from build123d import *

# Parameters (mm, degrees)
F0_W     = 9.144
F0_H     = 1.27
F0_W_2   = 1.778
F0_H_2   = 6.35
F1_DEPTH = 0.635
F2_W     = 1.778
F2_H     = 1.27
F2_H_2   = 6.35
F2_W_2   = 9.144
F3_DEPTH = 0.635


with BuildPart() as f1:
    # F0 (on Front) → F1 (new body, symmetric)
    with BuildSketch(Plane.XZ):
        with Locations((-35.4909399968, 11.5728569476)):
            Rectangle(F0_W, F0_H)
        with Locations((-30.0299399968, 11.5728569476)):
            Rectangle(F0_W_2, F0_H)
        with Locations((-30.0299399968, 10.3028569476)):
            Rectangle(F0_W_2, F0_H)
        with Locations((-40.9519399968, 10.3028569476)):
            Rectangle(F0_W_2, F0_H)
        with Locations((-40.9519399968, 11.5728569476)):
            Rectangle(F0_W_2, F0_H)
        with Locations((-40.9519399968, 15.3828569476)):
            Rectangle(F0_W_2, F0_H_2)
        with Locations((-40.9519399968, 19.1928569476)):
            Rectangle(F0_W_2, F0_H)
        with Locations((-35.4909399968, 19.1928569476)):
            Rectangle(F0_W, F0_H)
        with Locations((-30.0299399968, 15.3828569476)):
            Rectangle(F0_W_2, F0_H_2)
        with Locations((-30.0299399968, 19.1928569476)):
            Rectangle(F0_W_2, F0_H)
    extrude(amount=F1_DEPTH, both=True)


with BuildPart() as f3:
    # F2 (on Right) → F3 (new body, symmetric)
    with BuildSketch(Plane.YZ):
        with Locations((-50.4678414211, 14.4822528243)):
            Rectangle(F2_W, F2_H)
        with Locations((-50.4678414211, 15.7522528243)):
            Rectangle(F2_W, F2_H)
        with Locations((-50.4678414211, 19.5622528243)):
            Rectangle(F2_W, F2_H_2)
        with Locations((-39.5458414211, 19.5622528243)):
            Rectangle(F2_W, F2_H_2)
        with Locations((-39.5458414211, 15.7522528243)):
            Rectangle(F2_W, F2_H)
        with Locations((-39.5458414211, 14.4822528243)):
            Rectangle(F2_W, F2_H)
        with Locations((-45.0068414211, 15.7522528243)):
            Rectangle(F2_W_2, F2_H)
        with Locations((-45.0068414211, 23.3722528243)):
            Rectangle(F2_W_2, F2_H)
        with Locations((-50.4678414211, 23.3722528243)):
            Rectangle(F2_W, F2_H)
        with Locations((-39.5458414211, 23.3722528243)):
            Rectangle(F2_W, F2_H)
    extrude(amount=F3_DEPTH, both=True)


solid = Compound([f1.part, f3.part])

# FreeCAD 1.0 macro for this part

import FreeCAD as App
import Part
import Sketcher
Q = App.Units.Quantity

doc = App.newDocument("Part")
params = doc.addObject("Spreadsheet::Sheet", "Params")
for row, (alias, value) in enumerate([
    ("sketch1_width", "0.5 in"),
    ("sketch1_height", "0.4 in"),
    ("sketch1_width2", "0.07 in"),
    ("sketch1_height2", "0.05 in"),
    ("sketch1_height3", "0.25 in"),
    ("pad1_length", "0.05 in"),
    ("sketch2_width", "0.5 in"),
    ("sketch2_height", "0.4 in"),
    ("sketch2_width2", "0.07 in"),
    ("sketch2_height2", "0.05 in"),
    ("sketch2_height3", "0.25 in"),
    ("pad2_length", "0.05 in"),
], start=1):
    params.set(f"A{row}", alias)
    params.set(f"B{row}", "=" + value)
    params.setAlias(f"B{row}", alias)

body = doc.addObject("PartDesign::Body", "Body")

# Sketch on XZ plane
sketch1 = body.newObject("Sketcher::SketchObject", "Sketch")
sketch1.AttachmentSupport = (doc.getObject("XZ_Plane"), [""])
sketch1.MapMode = "FlatFace"
sketch1.addGeometry([
    Part.LineSegment(App.Vector(-29.1, 9.7, 0), App.Vector(-29.1, 19.8, 0)),  # 0
    Part.LineSegment(App.Vector(-29.1, 19.8, 0), App.Vector(-41.8, 19.8, 0)),  # 1
    Part.LineSegment(App.Vector(-41.8, 19.8, 0), App.Vector(-41.8, 9.7, 0)),  # 2
    Part.LineSegment(App.Vector(-41.8, 9.7, 0), App.Vector(-40.1, 9.7, 0)),  # 3
    Part.LineSegment(App.Vector(-40.1, 9.7, 0), App.Vector(-40.1, 10.9, 0)),  # 4
    Part.LineSegment(App.Vector(-40.1, 10.9, 0), App.Vector(-30.9, 10.9, 0)),  # 5
    Part.LineSegment(App.Vector(-30.9, 10.9, 0), App.Vector(-30.9, 9.7, 0)),  # 6
    Part.LineSegment(App.Vector(-30.9, 9.7, 0), App.Vector(-29.1, 9.7, 0)),  # 7
    Part.LineSegment(App.Vector(-30.9, 18.6, 0), App.Vector(-30.9, 12.2, 0)),  # 8
    Part.LineSegment(App.Vector(-30.9, 12.2, 0), App.Vector(-40.1, 12.2, 0)),  # 9
    Part.LineSegment(App.Vector(-40.1, 12.2, 0), App.Vector(-40.1, 18.6, 0)),  # 10
    Part.LineSegment(App.Vector(-40.1, 18.6, 0), App.Vector(-30.9, 18.6, 0)),  # 11
], False)
sketch1.addConstraint([
    Sketcher.Constraint("Coincident", 0, 2, 1, 1),
    Sketcher.Constraint("Coincident", 1, 2, 2, 1),
    Sketcher.Constraint("Coincident", 2, 2, 3, 1),
    Sketcher.Constraint("Coincident", 3, 2, 4, 1),
    Sketcher.Constraint("Coincident", 4, 2, 5, 1),
    Sketcher.Constraint("Coincident", 5, 2, 6, 1),
    Sketcher.Constraint("Coincident", 6, 2, 7, 1),
    Sketcher.Constraint("Coincident", 7, 2, 0, 1),
    Sketcher.Constraint("Coincident", 8, 2, 9, 1),
    Sketcher.Constraint("Coincident", 9, 2, 10, 1),
    Sketcher.Constraint("Coincident", 10, 2, 11, 1),
    Sketcher.Constraint("Coincident", 11, 2, 8, 1),
    Sketcher.Constraint("Vertical", 0),
    Sketcher.Constraint("Horizontal", 1),
    Sketcher.Constraint("Vertical", 2),
    Sketcher.Constraint("Horizontal", 3),
    Sketcher.Constraint("Vertical", 4),
    Sketcher.Constraint("Horizontal", 5),
    Sketcher.Constraint("Vertical", 6),
    Sketcher.Constraint("Horizontal", 7),
    Sketcher.Constraint("Vertical", 8),
    Sketcher.Constraint("Horizontal", 9),
    Sketcher.Constraint("Vertical", 10),
    Sketcher.Constraint("Horizontal", 11),
    Sketcher.Constraint("Horizontal", 3, 2, 6, 2),
    Sketcher.Constraint("Vertical", 6, 2, 8, 2),
    Sketcher.Constraint("Vertical", 4, 2, 9, 2),
    Sketcher.Constraint("Equal", 3, 7),
    Sketcher.Constraint("DistanceX", 1, 2, 1, 1, Q("0.5 in")),
    Sketcher.Constraint("DistanceY", 0, 1, 0, 2, Q("0.4 in")),
    Sketcher.Constraint("DistanceX", 3, 1, 3, 2, Q("0.07 in")),
    Sketcher.Constraint("DistanceY", 4, 1, 4, 2, Q("0.05 in")),
    Sketcher.Constraint("DistanceY", 8, 2, 8, 1, Q("0.25 in")),
    Sketcher.Constraint("DistanceY", 6, 2, 8, 2, Q("0.1 in")),
    Sketcher.Constraint("DistanceX", 0, 2, -1, 1, Q("29.14094 mm")),
    Sketcher.Constraint("DistanceY", -1, 1, 0, 2, Q("19.827857 mm")),
])
sketch1.setExpression("Constraints[28]", "Params.sketch1_width")
sketch1.setExpression("Constraints[29]", "Params.sketch1_height")
sketch1.setExpression("Constraints[30]", "Params.sketch1_width2")
sketch1.setExpression("Constraints[31]", "Params.sketch1_height2")
sketch1.setExpression("Constraints[32]", "Params.sketch1_height3")
pad1 = body.newObject("PartDesign::Pad", "Pad")
pad1.Profile = sketch1
pad1.setExpression("Length", "Params.pad1_length")
pad1.Midplane = True
body2 = doc.addObject("PartDesign::Body", "Body001")

# Sketch on YZ plane
sketch2 = body2.newObject("Sketcher::SketchObject", "Sketch001")
sketch2.AttachmentSupport = (doc.getObject("YZ_Plane001"), [""])
sketch2.MapMode = "FlatFace"
sketch2.addGeometry([
    Part.LineSegment(App.Vector(-38.7, 13.8, 0), App.Vector(-38.7, 24, 0)),  # 0
    Part.LineSegment(App.Vector(-38.7, 24, 0), App.Vector(-51.4, 24, 0)),  # 1
    Part.LineSegment(App.Vector(-51.4, 24, 0), App.Vector(-51.4, 13.8, 0)),  # 2
    Part.LineSegment(App.Vector(-51.4, 13.8, 0), App.Vector(-49.6, 13.8, 0)),  # 3
    Part.LineSegment(App.Vector(-49.6, 13.8, 0), App.Vector(-49.6, 15.1, 0)),  # 4
    Part.LineSegment(App.Vector(-49.6, 15.1, 0), App.Vector(-40.4, 15.1, 0)),  # 5
    Part.LineSegment(App.Vector(-40.4, 15.1, 0), App.Vector(-40.4, 13.8, 0)),  # 6
    Part.LineSegment(App.Vector(-40.4, 13.8, 0), App.Vector(-38.7, 13.8, 0)),  # 7
    Part.LineSegment(App.Vector(-49.6, 22.7, 0), App.Vector(-40.4, 22.7, 0)),  # 8
    Part.LineSegment(App.Vector(-40.4, 22.7, 0), App.Vector(-40.4, 16.4, 0)),  # 9
    Part.LineSegment(App.Vector(-40.4, 16.4, 0), App.Vector(-49.6, 16.4, 0)),  # 10
    Part.LineSegment(App.Vector(-49.6, 16.4, 0), App.Vector(-49.6, 22.7, 0)),  # 11
], False)
sketch2.addConstraint([
    Sketcher.Constraint("Coincident", 0, 2, 1, 1),
    Sketcher.Constraint("Coincident", 1, 2, 2, 1),
    Sketcher.Constraint("Coincident", 2, 2, 3, 1),
    Sketcher.Constraint("Coincident", 3, 2, 4, 1),
    Sketcher.Constraint("Coincident", 4, 2, 5, 1),
    Sketcher.Constraint("Coincident", 5, 2, 6, 1),
    Sketcher.Constraint("Coincident", 6, 2, 7, 1),
    Sketcher.Constraint("Coincident", 7, 2, 0, 1),
    Sketcher.Constraint("Coincident", 8, 2, 9, 1),
    Sketcher.Constraint("Coincident", 9, 2, 10, 1),
    Sketcher.Constraint("Coincident", 10, 2, 11, 1),
    Sketcher.Constraint("Coincident", 11, 2, 8, 1),
    Sketcher.Constraint("Vertical", 0),
    Sketcher.Constraint("Horizontal", 1),
    Sketcher.Constraint("Vertical", 2),
    Sketcher.Constraint("Horizontal", 3),
    Sketcher.Constraint("Vertical", 4),
    Sketcher.Constraint("Horizontal", 5),
    Sketcher.Constraint("Vertical", 6),
    Sketcher.Constraint("Horizontal", 7),
    Sketcher.Constraint("Horizontal", 8),
    Sketcher.Constraint("Vertical", 9),
    Sketcher.Constraint("Horizontal", 10),
    Sketcher.Constraint("Vertical", 11),
    Sketcher.Constraint("Horizontal", 3, 2, 6, 2),
    Sketcher.Constraint("Vertical", 6, 2, 8, 2),
    Sketcher.Constraint("Vertical", 4, 2, 10, 2),
    Sketcher.Constraint("Equal", 3, 7),
    Sketcher.Constraint("DistanceX", 1, 2, 1, 1, Q("0.5 in")),
    Sketcher.Constraint("DistanceY", 0, 1, 0, 2, Q("0.4 in")),
    Sketcher.Constraint("DistanceX", 3, 1, 3, 2, Q("0.07 in")),
    Sketcher.Constraint("DistanceY", 4, 1, 4, 2, Q("0.05 in")),
    Sketcher.Constraint("DistanceY", 9, 2, 9, 1, Q("0.25 in")),
    Sketcher.Constraint("DistanceY", 5, 2, 8, 2, Q("0.3 in")),
    Sketcher.Constraint("DistanceX", 0, 2, -1, 1, Q("38.656841 mm")),
    Sketcher.Constraint("DistanceY", -1, 1, 0, 2, Q("24.007253 mm")),
])
sketch2.setExpression("Constraints[28]", "Params.sketch2_width")
sketch2.setExpression("Constraints[29]", "Params.sketch2_height")
sketch2.setExpression("Constraints[30]", "Params.sketch2_width2")
sketch2.setExpression("Constraints[31]", "Params.sketch2_height2")
sketch2.setExpression("Constraints[32]", "Params.sketch2_height3")
pad2 = body2.newObject("PartDesign::Pad", "Pad001")
pad2.Profile = sketch2
pad2.setExpression("Length", "Params.pad2_length")
pad2.Midplane = True

doc.recompute()
